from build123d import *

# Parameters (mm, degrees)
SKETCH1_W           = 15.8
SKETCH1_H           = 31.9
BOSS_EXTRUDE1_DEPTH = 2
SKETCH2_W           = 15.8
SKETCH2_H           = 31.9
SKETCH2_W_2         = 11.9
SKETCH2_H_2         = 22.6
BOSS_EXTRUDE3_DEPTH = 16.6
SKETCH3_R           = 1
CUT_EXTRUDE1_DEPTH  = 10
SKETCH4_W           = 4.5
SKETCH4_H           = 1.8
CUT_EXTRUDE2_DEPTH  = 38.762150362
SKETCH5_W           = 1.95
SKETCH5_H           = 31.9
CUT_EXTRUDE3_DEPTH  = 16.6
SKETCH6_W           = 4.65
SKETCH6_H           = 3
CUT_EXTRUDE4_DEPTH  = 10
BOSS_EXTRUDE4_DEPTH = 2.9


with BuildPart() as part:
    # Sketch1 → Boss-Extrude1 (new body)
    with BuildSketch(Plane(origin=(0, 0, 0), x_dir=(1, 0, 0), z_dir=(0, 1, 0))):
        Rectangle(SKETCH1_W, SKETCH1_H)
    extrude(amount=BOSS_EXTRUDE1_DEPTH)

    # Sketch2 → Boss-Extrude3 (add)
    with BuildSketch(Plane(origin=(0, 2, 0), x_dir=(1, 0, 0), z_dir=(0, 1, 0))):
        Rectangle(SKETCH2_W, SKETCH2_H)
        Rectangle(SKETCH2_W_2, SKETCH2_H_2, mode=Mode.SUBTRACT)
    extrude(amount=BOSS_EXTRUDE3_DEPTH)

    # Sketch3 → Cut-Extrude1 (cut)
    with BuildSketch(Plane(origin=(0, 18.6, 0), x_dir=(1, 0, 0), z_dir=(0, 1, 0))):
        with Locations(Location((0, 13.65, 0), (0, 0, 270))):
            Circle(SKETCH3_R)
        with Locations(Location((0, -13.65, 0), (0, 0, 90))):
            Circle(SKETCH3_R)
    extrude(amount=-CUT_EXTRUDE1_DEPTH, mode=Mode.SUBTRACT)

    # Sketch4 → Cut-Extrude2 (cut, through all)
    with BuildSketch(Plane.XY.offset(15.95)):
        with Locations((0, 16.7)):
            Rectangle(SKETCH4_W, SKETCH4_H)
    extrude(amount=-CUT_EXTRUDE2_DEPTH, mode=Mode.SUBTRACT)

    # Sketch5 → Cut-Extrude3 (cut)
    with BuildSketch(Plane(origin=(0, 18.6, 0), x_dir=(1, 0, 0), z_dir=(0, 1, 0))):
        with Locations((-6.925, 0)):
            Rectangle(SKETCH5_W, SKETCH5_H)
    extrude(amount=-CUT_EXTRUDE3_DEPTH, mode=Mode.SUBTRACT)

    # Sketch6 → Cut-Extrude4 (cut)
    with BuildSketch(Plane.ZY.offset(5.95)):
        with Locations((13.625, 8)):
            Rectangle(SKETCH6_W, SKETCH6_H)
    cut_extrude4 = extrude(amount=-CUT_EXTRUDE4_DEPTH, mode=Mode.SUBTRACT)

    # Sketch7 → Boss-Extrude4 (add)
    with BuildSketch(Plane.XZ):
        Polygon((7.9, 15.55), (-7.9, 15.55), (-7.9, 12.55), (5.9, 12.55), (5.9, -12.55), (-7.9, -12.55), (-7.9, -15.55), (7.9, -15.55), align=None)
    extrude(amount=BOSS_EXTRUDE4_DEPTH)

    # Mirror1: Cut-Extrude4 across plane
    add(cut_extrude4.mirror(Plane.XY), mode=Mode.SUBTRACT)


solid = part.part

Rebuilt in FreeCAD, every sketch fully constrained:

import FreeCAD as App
import Part
import Sketcher
Q = App.Units.Quantity


def add_polygon(sketch, points):
    """Adds a closed chain of lines whose ends are joined by coincident constraints."""
    first, n = sketch.GeometryCount, len(points)
    for a, b in zip(points, points[1:] + points[:1]):
        sketch.addGeometry(Part.LineSegment(App.Vector(*a, 0), App.Vector(*b, 0)), False)
    for i in range(n):
        sketch.addConstraint(Sketcher.Constraint("Coincident", first + i, 2, first + (i + 1) % n, 1))

doc = App.newDocument("Part")
body = doc.addObject("PartDesign::Body", "Body")

sketch1 = doc.addObject("Sketcher::SketchObject", "Sketch")
body.addObject(sketch1)
sketch1.AttachmentSupport = (doc.XZ_Plane, [""])
sketch1.MapMode = "FlatFace"
add_polygon(sketch1, [(-8, -16), (-8, 16), (8, 16), (8, -16)])
sketch1.addConstraint([
    Sketcher.Constraint("Vertical", 0),
    Sketcher.Constraint("Horizontal", 1),
    Sketcher.Constraint("Vertical", 2),
    Sketcher.Constraint("Horizontal", 3),
    Sketcher.Constraint("Symmetric", 0, 2, 2, 2, -1, 1),
    Sketcher.Constraint("DistanceX", 1, 1, 1, 2, Q("15.8 mm")),
    Sketcher.Constraint("DistanceY", 0, 1, 0, 2, Q("31.9 mm")),
])
pad1 = doc.addObject("PartDesign::Pad", "Pad")
body.addObject(pad1)
pad1.Profile = sketch1
pad1.Length = 2
pad1.Reversed = True

sketch2 = doc.addObject("Sketcher::SketchObject", "Sketch001")
body.addObject(sketch2)
sketch2.AttachmentSupport = (doc.XZ_Plane, [""])
sketch2.MapMode = "FlatFace"
sketch2.AttachmentOffset = App.Placement(App.Vector(0, 0, -2), App.Rotation())
add_polygon(sketch2, [(-8, -16), (-8, 16), (8, 16), (8, -16)])
add_polygon(sketch2, [(6, 11), (-6, 11), (-6, -11), (6, -11)])
sketch2.addConstraint([
    Sketcher.Constraint("Vertical", 0),
    Sketcher.Constraint("Horizontal", 1),
    Sketcher.Constraint("Vertical", 2),
    Sketcher.Constraint("Horizontal", 3),
    Sketcher.Constraint("Horizontal", 4),
    Sketcher.Constraint("Vertical", 5),
    Sketcher.Constraint("Horizontal", 6),
    Sketcher.Constraint("Vertical", 7),
    Sketcher.Constraint("Symmetric", 0, 2, 2, 2, -1, 1),
    Sketcher.Constraint("Symmetric", 4, 2, 6, 2, -1, 1),
    Sketcher.Constraint("DistanceX", 1, 1, 1, 2, Q("15.8 mm")),
    Sketcher.Constraint("DistanceX", 4, 2, 4, 1, Q("11.9 mm")),
    Sketcher.Constraint("DistanceY", 0, 1, 0, 2, Q("31.9 mm")),
    Sketcher.Constraint("DistanceY", 5, 2, 5, 1, Q("22.6 mm")),
])
pad2 = doc.addObject("PartDesign::Pad", "Pad001")
body.addObject(pad2)
pad2.Profile = sketch2
pad2.Length = 16.6
pad2.Reversed = True

sketch3 = doc.addObject("Sketcher::SketchObject", "Sketch002")
body.addObject(sketch3)
sketch3.AttachmentSupport = (doc.XZ_Plane, [""])
sketch3.MapMode = "FlatFace"
sketch3.AttachmentOffset = App.Placement(App.Vector(0, 0, -18.6), App.Rotation())
sketch3.addGeometry([
    Part.Circle(App.Vector(0, -13.7, 0), App.Vector(0, 0, 1), 1),
    Part.Circle(App.Vector(0, 13.7, 0), App.Vector(0, 0, 1), 1),
], False)
sketch3.addConstraint([
    Sketcher.Constraint("Equal", 0, 1),
    Sketcher.Constraint("Symmetric", 0, 3, 1, 3, -1, 1),
    Sketcher.Constraint("PointOnObject", 0, 3, -2),
    Sketcher.Constraint("Diameter", 0, Q("2 mm")),
    Sketcher.Constraint("DistanceY", 0, 3, 1, 3, Q("27.3 mm")),
])
pocket1 = doc.addObject("PartDesign::Pocket", "Pocket")
body.addObject(pocket1)
pocket1.Profile = sketch3
pocket1.Length = 10
pocket1.Reversed = True

sketch4 = doc.addObject("Sketcher::SketchObject", "Sketch003")
body.addObject(sketch4)
sketch4.AttachmentSupport = (doc.XY_Plane, [""])
sketch4.MapMode = "FlatFace"
sketch4.AttachmentOffset = App.Placement(App.Vector(0, 0, 15.95), App.Rotation())
add_polygon(sketch4, [(-2.2, 17.6), (-2.2, 15.8), (2.2, 15.8), (2.2, 17.6)])
sketch4.addConstraint([
    Sketcher.Constraint("Vertical", 0),
    Sketcher.Constraint("Horizontal", 1),
    Sketcher.Constraint("Vertical", 2),
    Sketcher.Constraint("Horizontal", 3),
    Sketcher.Constraint("DistanceX", 1, 1, 1, 2, Q("4.5 mm")),
    Sketcher.Constraint("DistanceY", 0, 2, 0, 1, Q("1.8 mm")),
    Sketcher.Constraint("DistanceY", -1, 1, 0, 2, Q("15.8 mm")),
    Sketcher.Constraint("DistanceX", 0, 2, -1, 1, Q("2.25 mm")),
])
pocket2 = doc.addObject("PartDesign::Pocket", "Pocket001")
body.addObject(pocket2)
pocket2.Profile = sketch4
pocket2.Type = "ThroughAll"

sketch5 = doc.addObject("Sketcher::SketchObject", "Sketch004")
body.addObject(sketch5)
sketch5.AttachmentSupport = (doc.XZ_Plane, [""])
sketch5.MapMode = "FlatFace"
sketch5.AttachmentOffset = App.Placement(App.Vector(0, 0, -18.6), App.Rotation())
add_polygon(sketch5, [(-7.9, -15.9), (-7.9, 15.9), (-6, 15.9), (-6, -15.9)])
sketch5.addConstraint([
    Sketcher.Constraint("Vertical", 0),
    Sketcher.Constraint("Horizontal", 1),
    Sketcher.Constraint("Vertical", 2),
    Sketcher.Constraint("Horizontal", 3),
    Sketcher.Constraint("DistanceY", 0, 1, 0, 2, Q("31.9 mm")),
    Sketcher.Constraint("DistanceX", 1, 1, 1, 2, Q("1.95 mm")),
    Sketcher.Constraint("DistanceX", 0, 2, -1, 1, Q("7.9 mm")),
    Sketcher.Constraint("DistanceY", -1, 1, 0, 2, Q("15.95 mm")),
])
pocket3 = doc.addObject("PartDesign::Pocket", "Pocket002")
body.addObject(pocket3)
pocket3.Profile = sketch5
pocket3.Length = 16.6
pocket3.Reversed = True

sketch6 = doc.addObject("Sketcher::SketchObject", "Sketch005")
body.addObject(sketch6)
sketch6.AttachmentSupport = (doc.YZ_Plane, [""])
sketch6.MapMode = "FlatFace"
sketch6.AttachmentOffset = App.Placement(App.Vector(0, 0, -5.95), App.Rotation())
add_polygon(sketch6, [(9.5, 11.3), (6.5, 11.3), (6.5, 15.9), (9.5, 15.9)])
sketch6.addConstraint([
    Sketcher.Constraint("Horizontal", 0),
    Sketcher.Constraint("Vertical", 1),
    Sketcher.Constraint("Horizontal", 2),
    Sketcher.Constraint("Vertical", 3),
    Sketcher.Constraint("DistanceX", 0, 2, 0, 1, Q("3 mm")),
    Sketcher.Constraint("DistanceY", 1, 1, 1, 2, Q("4.65 mm")),
    Sketcher.Constraint("DistanceX", -1, 1, 0, 2, Q("6.5 mm")),
    Sketcher.Constraint("DistanceY", -1, 1, 0, 2, Q("11.3 mm")),
])
pocket4 = doc.addObject("PartDesign::Pocket", "Pocket003")
body.addObject(pocket4)
pocket4.Profile = sketch6
pocket4.Length = 10
pocket4.Reversed = True

sketch7 = doc.addObject("Sketcher::SketchObject", "Sketch006")
body.addObject(sketch7)
sketch7.AttachmentSupport = (doc.XZ_Plane, [""])
sketch7.MapMode = "FlatFace"
add_polygon(sketch7, [(7.9, 15.6), (-7.9, 15.6), (-7.9, 12.6), (5.9, 12.6), (5.9, -12.6), (-7.9, -12.6), (-7.9, -15.6), (7.9, -15.6)])
sketch7.addConstraint([
    Sketcher.Constraint("Horizontal", 0),
    Sketcher.Constraint("Vertical", 1),
    Sketcher.Constraint("Horizontal", 2),
    Sketcher.Constraint("Vertical", 3),
    Sketcher.Constraint("Horizontal", 4),
    Sketcher.Constraint("Vertical", 5),
    Sketcher.Constraint("Horizontal", 6),
    Sketcher.Constraint("Vertical", 7),
    Sketcher.Constraint("Symmetric", 0, 2, 6, 2, -1, 1),
    Sketcher.Constraint("Symmetric", 1, 2, 4, 2, -1),
    Sketcher.Constraint("DistanceY", 1, 2, 1, 1, Q("3 mm")),
    Sketcher.Constraint("DistanceX", 0, 2, 0, 1, Q("15.8 mm")),
    Sketcher.Constraint("DistanceX", 2, 1, 2, 2, Q("13.8 mm")),
    Sketcher.Constraint("DistanceY", 3, 2, 3, 1, Q("25.1 mm")),
])
pad3 = doc.addObject("PartDesign::Pad", "Pad002")
body.addObject(pad3)
pad3.Profile = sketch7
pad3.Length = 2.9
doc.recompute()

mirrored = doc.addObject("PartDesign::Mirrored", "Mirrored")
body.addObject(mirrored)
mirrored.Originals = [pocket4]
mirrored.MirrorPlane = (doc.XY_Plane, [""])
body.Tip = mirrored

doc.recompute()
